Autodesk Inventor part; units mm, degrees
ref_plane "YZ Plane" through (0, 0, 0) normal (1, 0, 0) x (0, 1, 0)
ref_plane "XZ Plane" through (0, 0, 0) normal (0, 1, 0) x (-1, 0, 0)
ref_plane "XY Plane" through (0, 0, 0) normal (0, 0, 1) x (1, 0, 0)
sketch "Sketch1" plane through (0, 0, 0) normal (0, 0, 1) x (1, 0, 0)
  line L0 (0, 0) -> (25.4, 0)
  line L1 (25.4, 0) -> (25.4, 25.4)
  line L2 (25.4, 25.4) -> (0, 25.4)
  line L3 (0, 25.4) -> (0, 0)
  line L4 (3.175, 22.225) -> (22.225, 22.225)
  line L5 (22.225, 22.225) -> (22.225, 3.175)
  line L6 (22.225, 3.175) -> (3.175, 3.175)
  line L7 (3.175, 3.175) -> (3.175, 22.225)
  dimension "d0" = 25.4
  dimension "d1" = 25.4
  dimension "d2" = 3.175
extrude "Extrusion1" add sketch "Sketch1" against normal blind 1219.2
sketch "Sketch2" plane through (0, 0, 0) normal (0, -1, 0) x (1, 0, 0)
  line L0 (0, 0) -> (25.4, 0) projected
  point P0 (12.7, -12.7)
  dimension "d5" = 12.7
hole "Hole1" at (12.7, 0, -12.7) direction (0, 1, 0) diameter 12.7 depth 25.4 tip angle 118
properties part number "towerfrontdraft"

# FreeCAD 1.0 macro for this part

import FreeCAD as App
import Part
import Sketcher

V = App.Vector
Q = App.Units.Quantity

doc = App.newDocument("Part")
body = doc.addObject("PartDesign::Body", "Body")

sketch1 = body.newObject("Sketcher::SketchObject", "Sketch")
sketch1.AttachmentSupport = (doc.getObject("XY_Plane"), [""])
sketch1.MapMode = "FlatFace"
sketch1.addGeometry(Part.LineSegment(V(0, 25, 0), V(0, 0, 0)), False)
sketch1.addGeometry(Part.LineSegment(V(0, 0, 0), V(25, 0, 0)), False)
sketch1.addGeometry(Part.LineSegment(V(25, 0, 0), V(25, 25, 0)), False)
sketch1.addGeometry(Part.LineSegment(V(25, 25, 0), V(0, 25, 0)), False)
sketch1.addGeometry(Part.LineSegment(V(3, 3, 0), V(3, 22, 0)), False)
sketch1.addGeometry(Part.LineSegment(V(3, 22, 0), V(22, 22, 0)), False)
sketch1.addGeometry(Part.LineSegment(V(22, 22, 0), V(22, 3, 0)), False)
sketch1.addGeometry(Part.LineSegment(V(22, 3, 0), V(3, 3, 0)), False)
sketch1.addConstraint(Sketcher.Constraint("Coincident", 0, 2, 1, 1))
sketch1.addConstraint(Sketcher.Constraint("Coincident", 1, 2, 2, 1))
sketch1.addConstraint(Sketcher.Constraint("Coincident", 2, 2, 3, 1))
sketch1.addConstraint(Sketcher.Constraint("Coincident", 3, 2, 0, 1))
sketch1.addConstraint(Sketcher.Constraint("Coincident", 4, 2, 5, 1))
sketch1.addConstraint(Sketcher.Constraint("Coincident", 5, 2, 6, 1))
sketch1.addConstraint(Sketcher.Constraint("Coincident", 6, 2, 7, 1))
sketch1.addConstraint(Sketcher.Constraint("Coincident", 7, 2, 4, 1))
sketch1.addConstraint(Sketcher.Constraint("Vertical", 0))
sketch1.addConstraint(Sketcher.Constraint("Horizontal", 1))
sketch1.addConstraint(Sketcher.Constraint("Vertical", 2))
sketch1.addConstraint(Sketcher.Constraint("Horizontal", 3))
sketch1.addConstraint(Sketcher.Constraint("Vertical", 4))
sketch1.addConstraint(Sketcher.Constraint("Horizontal", 5))
sketch1.addConstraint(Sketcher.Constraint("Vertical", 6))
sketch1.addConstraint(Sketcher.Constraint("Horizontal", 7))
sketch1.addConstraint(Sketcher.Constraint("Coincident", 0, 2, -1, 1))
sketch1.addConstraint(Sketcher.Constraint("Equal", 3, 0))
sketch1.addConstraint(Sketcher.Constraint("Equal", 7, 4))
sketch1.addConstraint(Sketcher.Constraint("DistanceX", 1, 1, 1, 2, Q("1 in")))
sketch1.addConstraint(Sketcher.Constraint("DistanceX", -1, 1, 4, 2, Q("0.125 in")))
sketch1.addConstraint(Sketcher.Constraint("DistanceY", -1, 1, 6, 2, Q("0.125 in")))
sketch1.addConstraint(Sketcher.Constraint("DistanceY", 4, 2, 3, 2, Q("0.125 in")))
pad1 = body.newObject("PartDesign::Pad", "Pad")
pad1.Profile = sketch1
pad1.Length = Q("48 in")
pad1.Reversed = True

sketch2 = body.newObject("Sketcher::SketchObject", "Sketch001")
sketch2.AttachmentSupport = (doc.getObject("XZ_Plane"), [""])
sketch2.MapMode = "FlatFace"
sketch2.addGeometry(Part.Circle(V(13, -13, 0), V(0, 0, 1), 6), False)
sketch2.addConstraint(Sketcher.Constraint("Diameter", 0, Q("0.5 in")))
sketch2.addConstraint(Sketcher.Constraint("DistanceX", -1, 1, 0, 3, Q("0.5 in")))
sketch2.addConstraint(Sketcher.Constraint("DistanceY", 0, 3, -1, 1, Q("0.5 in")))
doc.recompute()
hole = body.newObject("PartDesign::Hole", "Hole")
hole.Profile = sketch2
hole.ThreadType = "None"
hole.Diameter = Q("0.5 in")
hole.DepthType = "Dimension"
hole.Depth = Q("1 in")
hole.DrillPoint = "Angled"
hole.DrillPointAngle = 118

doc.recompute()
